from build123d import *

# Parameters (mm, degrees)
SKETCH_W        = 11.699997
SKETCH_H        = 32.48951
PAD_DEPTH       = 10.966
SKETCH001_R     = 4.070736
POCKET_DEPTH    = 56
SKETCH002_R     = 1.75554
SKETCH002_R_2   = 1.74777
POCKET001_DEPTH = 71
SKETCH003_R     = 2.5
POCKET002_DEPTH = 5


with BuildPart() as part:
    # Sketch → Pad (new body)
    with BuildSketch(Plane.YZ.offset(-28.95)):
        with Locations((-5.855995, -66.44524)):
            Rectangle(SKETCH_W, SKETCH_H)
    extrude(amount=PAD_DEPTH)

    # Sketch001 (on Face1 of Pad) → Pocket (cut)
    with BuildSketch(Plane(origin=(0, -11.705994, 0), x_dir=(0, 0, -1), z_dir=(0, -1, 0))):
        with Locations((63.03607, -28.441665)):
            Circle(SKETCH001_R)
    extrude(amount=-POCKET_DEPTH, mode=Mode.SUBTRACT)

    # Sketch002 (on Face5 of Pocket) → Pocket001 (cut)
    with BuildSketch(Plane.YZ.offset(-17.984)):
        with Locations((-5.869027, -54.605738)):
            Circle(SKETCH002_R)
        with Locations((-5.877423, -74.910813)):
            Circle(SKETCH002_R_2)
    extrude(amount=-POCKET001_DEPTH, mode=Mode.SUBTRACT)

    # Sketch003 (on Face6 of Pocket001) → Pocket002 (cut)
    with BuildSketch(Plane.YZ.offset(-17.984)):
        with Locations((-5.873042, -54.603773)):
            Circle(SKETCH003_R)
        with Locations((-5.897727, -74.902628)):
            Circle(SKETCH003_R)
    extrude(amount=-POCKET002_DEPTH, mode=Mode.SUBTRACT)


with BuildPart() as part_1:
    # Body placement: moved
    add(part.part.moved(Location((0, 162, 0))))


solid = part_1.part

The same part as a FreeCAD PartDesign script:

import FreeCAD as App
import Part
import Sketcher

V = App.Vector
Q = App.Units.Quantity

doc = App.newDocument("Part")
body = doc.addObject("PartDesign::Body", "Body")

# Sketch on YZ plane
sketch1 = doc.addObject("Sketcher::SketchObject", "Sketch")
body.addObject(sketch1)
sketch1.AttachmentSupport = (doc.YZ_Plane, [""])
sketch1.MapMode = "FlatFace"
sketch1.AttachmentOffset = App.Placement(V(0, 0, -28.95), App.Rotation())
sketch1.addGeometry(Part.LineSegment(V(-11.705993, -50.200485, 0), V(-11.705993, -82.689995, 0)), False)
sketch1.addGeometry(Part.LineSegment(V(-11.705993, -82.689995, 0), V(-0.005997, -82.689995, 0)), False)
sketch1.addGeometry(Part.LineSegment(V(-0.005997, -82.689995, 0), V(-0.005997, -50.200485, 0)), False)
sketch1.addGeometry(Part.LineSegment(V(-0.005997, -50.200485, 0), V(-11.705993, -50.200485, 0)), False)
sketch1.addConstraint(Sketcher.Constraint("Coincident", 0, 2, 1, 1))
sketch1.addConstraint(Sketcher.Constraint("Coincident", 1, 2, 2, 1))
sketch1.addConstraint(Sketcher.Constraint("Coincident", 2, 2, 3, 1))
sketch1.addConstraint(Sketcher.Constraint("Coincident", 3, 2, 0, 1))
sketch1.addConstraint(Sketcher.Constraint("Vertical", 0))
sketch1.addConstraint(Sketcher.Constraint("Horizontal", 1))
sketch1.addConstraint(Sketcher.Constraint("Vertical", 2))
sketch1.addConstraint(Sketcher.Constraint("Horizontal", 3))
sketch1.addConstraint(Sketcher.Constraint("DistanceY", 0, 2, 0, 1, Q("32.48951 mm")))
sketch1.addConstraint(Sketcher.Constraint("DistanceX", 1, 1, 1, 2, Q("11.699997 mm")))
sketch1.addConstraint(Sketcher.Constraint("DistanceX", 0, 2, -1, 1, Q("11.705993 mm")))
sketch1.addConstraint(Sketcher.Constraint("DistanceY", 0, 2, -1, 1, Q("82.689995 mm")))
pad1 = doc.addObject("PartDesign::Pad", "Pad")
body.addObject(pad1)
pad1.Profile = sketch1
pad1.Length = 10.966

# Sketch on XZ plane
sketch2 = doc.addObject("Sketcher::SketchObject", "Sketch001")
body.addObject(sketch2)
sketch2.AttachmentSupport = (doc.XZ_Plane, [""])
sketch2.MapMode = "FlatFace"
sketch2.AttachmentOffset = App.Placement(V(0, 0, 11.705994), App.Rotation())
sketch2.addGeometry(Part.Circle(V(-28.441665, -63.03607, 0), V(0, 0, 1), 4.070736), False)
sketch2.addConstraint(Sketcher.Constraint("Diameter", 0, Q("8.141472 mm")))
sketch2.addConstraint(Sketcher.Constraint("DistanceY", 0, 3, -1, 1, Q("63.03607 mm")))
sketch2.addConstraint(Sketcher.Constraint("DistanceX", 0, 3, -1, 1, Q("28.441665 mm")))
pocket1 = doc.addObject("PartDesign::Pocket", "Pocket")
body.addObject(pocket1)
pocket1.Profile = sketch2
pocket1.Length = 56

# Sketch on YZ plane
sketch3 = doc.addObject("Sketcher::SketchObject", "Sketch002")
body.addObject(sketch3)
sketch3.AttachmentSupport = (doc.YZ_Plane, [""])
sketch3.MapMode = "FlatFace"
sketch3.AttachmentOffset = App.Placement(V(0, 0, -17.984), App.Rotation())
sketch3.addGeometry(Part.Circle(V(-5.869027, -54.605738, 0), V(0, 0, 1), 1.75554), False)
sketch3.addGeometry(Part.Circle(V(-5.877423, -74.910813, 0), V(0, 0, 1), 1.74777), False)
sketch3.addConstraint(Sketcher.Constraint("Diameter", 0, Q("3.51108 mm")))
sketch3.addConstraint(Sketcher.Constraint("Diameter", 1, Q("3.49554 mm")))
sketch3.addConstraint(Sketcher.Constraint("DistanceY", 0, 3, -1, 1, Q("54.605738 mm")))
sketch3.addConstraint(Sketcher.Constraint("DistanceX", 0, 3, -1, 1, Q("5.869027 mm")))
sketch3.addConstraint(Sketcher.Constraint("DistanceX", 1, 3, -1, 1, Q("5.877423 mm")))
sketch3.addConstraint(Sketcher.Constraint("DistanceY", 1, 3, -1, 1, Q("74.910813 mm")))
pocket2 = doc.addObject("PartDesign::Pocket", "Pocket001")
body.addObject(pocket2)
pocket2.Profile = sketch3
pocket2.Length = 71

# Sketch on YZ plane
sketch4 = doc.addObject("Sketcher::SketchObject", "Sketch003")
body.addObject(sketch4)
sketch4.AttachmentSupport = (doc.YZ_Plane, [""])
sketch4.MapMode = "FlatFace"
sketch4.AttachmentOffset = App.Placement(V(0, 0, -17.984), App.Rotation())
sketch4.addGeometry(Part.Circle(V(-5.873042, -54.603773, 0), V(0, 0, 1), 2.5), False)
sketch4.addGeometry(Part.Circle(V(-5.897727, -74.902628, 0), V(0, 0, 1), 2.5), False)
sketch4.addConstraint(Sketcher.Constraint("Equal", 0, 1))
sketch4.addConstraint(Sketcher.Constraint("Diameter", 0, Q("5 mm")))
sketch4.addConstraint(Sketcher.Constraint("DistanceY", 1, 3, -1, 1, Q("74.902628 mm")))
sketch4.addConstraint(Sketcher.Constraint("DistanceX", 0, 3, -1, 1, Q("5.873042 mm")))
sketch4.addConstraint(Sketcher.Constraint("DistanceY", 0, 3, -1, 1, Q("54.603773 mm")))
sketch4.addConstraint(Sketcher.Constraint("DistanceX", 1, 3, -1, 1, Q("5.897727 mm")))
pocket3 = doc.addObject("PartDesign::Pocket", "Pocket002")
body.addObject(pocket3)
pocket3.Profile = sketch4
pocket3.Length = 5
body2 = doc.addObject("PartDesign::Body", "Body001")
doc.recompute()

body.Placement = App.Placement(V(0, 162, 0), App.Rotation(V(0, 0, 1), 0))
boolean = doc.addObject("PartDesign::Boolean", "Boolean")
body2.addObject(boolean)
boolean.Type = "Fuse"
boolean.addObjects([body])

doc.recompute()
